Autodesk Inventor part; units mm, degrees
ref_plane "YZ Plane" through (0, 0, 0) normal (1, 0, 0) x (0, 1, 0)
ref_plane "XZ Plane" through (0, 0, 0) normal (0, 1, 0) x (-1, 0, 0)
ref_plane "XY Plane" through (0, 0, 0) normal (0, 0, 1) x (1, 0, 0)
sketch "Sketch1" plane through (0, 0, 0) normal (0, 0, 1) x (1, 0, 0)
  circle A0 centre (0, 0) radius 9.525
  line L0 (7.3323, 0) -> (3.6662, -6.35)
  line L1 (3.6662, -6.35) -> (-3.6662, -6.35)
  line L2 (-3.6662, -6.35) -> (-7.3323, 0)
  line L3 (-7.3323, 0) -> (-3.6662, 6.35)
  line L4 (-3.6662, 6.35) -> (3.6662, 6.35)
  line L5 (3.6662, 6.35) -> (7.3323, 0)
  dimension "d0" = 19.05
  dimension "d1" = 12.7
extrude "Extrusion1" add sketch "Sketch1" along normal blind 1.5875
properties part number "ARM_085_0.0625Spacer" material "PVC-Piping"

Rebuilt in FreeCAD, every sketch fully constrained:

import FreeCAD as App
import Part
import Sketcher
Q = App.Units.Quantity

doc = App.newDocument("Part")
body = doc.addObject("PartDesign::Body", "Body")

sketch1 = body.newObject("Sketcher::SketchObject", "Sketch")
sketch1.AttachmentSupport = (doc.getObject("XY_Plane"), [""])
sketch1.MapMode = "FlatFace"
sketch1.addGeometry([
    Part.Circle(App.Vector(0, 0, 0), App.Vector(0, 0, 1), 10),
    Part.LineSegment(App.Vector(4, 6, 0), App.Vector(7, 0, 0)),
    Part.LineSegment(App.Vector(7, 0, 0), App.Vector(4, -6, 0)),
    Part.LineSegment(App.Vector(4, -6, 0), App.Vector(-4, -6, 0)),
    Part.LineSegment(App.Vector(-4, -6, 0), App.Vector(-7, 0, 0)),
    Part.LineSegment(App.Vector(-7, 0, 0), App.Vector(-4, 6, 0)),
    Part.LineSegment(App.Vector(-4, 6, 0), App.Vector(4, 6, 0)),
], False)
sketch1.addConstraint([
    Sketcher.Constraint("Coincident", 1, 2, 2, 1),
    Sketcher.Constraint("Coincident", 2, 2, 3, 1),
    Sketcher.Constraint("Coincident", 3, 2, 4, 1),
    Sketcher.Constraint("Coincident", 4, 2, 5, 1),
    Sketcher.Constraint("Coincident", 5, 2, 6, 1),
    Sketcher.Constraint("Coincident", 6, 2, 1, 1),
    Sketcher.Constraint("Horizontal", 3),
    Sketcher.Constraint("Horizontal", 6),
    Sketcher.Constraint("Coincident", 0, 3, -1, 1),
    Sketcher.Constraint("Symmetric", 1, 2, 4, 2, -1, 1),
    Sketcher.Constraint("Symmetric", 2, 2, 5, 2, -1, 1),
    Sketcher.Constraint("PointOnObject", 1, 2, -1),
    Sketcher.Constraint("Parallel", 1, 4),
    Sketcher.Constraint("Vertical", 3, 2, 5, 2),
    Sketcher.Constraint("Diameter", 0, Q("0.75 in")),
    Sketcher.Constraint("DistanceY", 3, 2, 5, 2, Q("0.5 in")),
    Sketcher.Constraint("Angle", 1, Q("-60.0005 deg")),
    Sketcher.Constraint("DistanceX", 3, 2, 1, 2, Q("0.433 in")),
])
pad1 = body.newObject("PartDesign::Pad", "Pad")
pad1.Profile = sketch1
pad1.Length = Q("0.0625 in")

doc.recompute()
